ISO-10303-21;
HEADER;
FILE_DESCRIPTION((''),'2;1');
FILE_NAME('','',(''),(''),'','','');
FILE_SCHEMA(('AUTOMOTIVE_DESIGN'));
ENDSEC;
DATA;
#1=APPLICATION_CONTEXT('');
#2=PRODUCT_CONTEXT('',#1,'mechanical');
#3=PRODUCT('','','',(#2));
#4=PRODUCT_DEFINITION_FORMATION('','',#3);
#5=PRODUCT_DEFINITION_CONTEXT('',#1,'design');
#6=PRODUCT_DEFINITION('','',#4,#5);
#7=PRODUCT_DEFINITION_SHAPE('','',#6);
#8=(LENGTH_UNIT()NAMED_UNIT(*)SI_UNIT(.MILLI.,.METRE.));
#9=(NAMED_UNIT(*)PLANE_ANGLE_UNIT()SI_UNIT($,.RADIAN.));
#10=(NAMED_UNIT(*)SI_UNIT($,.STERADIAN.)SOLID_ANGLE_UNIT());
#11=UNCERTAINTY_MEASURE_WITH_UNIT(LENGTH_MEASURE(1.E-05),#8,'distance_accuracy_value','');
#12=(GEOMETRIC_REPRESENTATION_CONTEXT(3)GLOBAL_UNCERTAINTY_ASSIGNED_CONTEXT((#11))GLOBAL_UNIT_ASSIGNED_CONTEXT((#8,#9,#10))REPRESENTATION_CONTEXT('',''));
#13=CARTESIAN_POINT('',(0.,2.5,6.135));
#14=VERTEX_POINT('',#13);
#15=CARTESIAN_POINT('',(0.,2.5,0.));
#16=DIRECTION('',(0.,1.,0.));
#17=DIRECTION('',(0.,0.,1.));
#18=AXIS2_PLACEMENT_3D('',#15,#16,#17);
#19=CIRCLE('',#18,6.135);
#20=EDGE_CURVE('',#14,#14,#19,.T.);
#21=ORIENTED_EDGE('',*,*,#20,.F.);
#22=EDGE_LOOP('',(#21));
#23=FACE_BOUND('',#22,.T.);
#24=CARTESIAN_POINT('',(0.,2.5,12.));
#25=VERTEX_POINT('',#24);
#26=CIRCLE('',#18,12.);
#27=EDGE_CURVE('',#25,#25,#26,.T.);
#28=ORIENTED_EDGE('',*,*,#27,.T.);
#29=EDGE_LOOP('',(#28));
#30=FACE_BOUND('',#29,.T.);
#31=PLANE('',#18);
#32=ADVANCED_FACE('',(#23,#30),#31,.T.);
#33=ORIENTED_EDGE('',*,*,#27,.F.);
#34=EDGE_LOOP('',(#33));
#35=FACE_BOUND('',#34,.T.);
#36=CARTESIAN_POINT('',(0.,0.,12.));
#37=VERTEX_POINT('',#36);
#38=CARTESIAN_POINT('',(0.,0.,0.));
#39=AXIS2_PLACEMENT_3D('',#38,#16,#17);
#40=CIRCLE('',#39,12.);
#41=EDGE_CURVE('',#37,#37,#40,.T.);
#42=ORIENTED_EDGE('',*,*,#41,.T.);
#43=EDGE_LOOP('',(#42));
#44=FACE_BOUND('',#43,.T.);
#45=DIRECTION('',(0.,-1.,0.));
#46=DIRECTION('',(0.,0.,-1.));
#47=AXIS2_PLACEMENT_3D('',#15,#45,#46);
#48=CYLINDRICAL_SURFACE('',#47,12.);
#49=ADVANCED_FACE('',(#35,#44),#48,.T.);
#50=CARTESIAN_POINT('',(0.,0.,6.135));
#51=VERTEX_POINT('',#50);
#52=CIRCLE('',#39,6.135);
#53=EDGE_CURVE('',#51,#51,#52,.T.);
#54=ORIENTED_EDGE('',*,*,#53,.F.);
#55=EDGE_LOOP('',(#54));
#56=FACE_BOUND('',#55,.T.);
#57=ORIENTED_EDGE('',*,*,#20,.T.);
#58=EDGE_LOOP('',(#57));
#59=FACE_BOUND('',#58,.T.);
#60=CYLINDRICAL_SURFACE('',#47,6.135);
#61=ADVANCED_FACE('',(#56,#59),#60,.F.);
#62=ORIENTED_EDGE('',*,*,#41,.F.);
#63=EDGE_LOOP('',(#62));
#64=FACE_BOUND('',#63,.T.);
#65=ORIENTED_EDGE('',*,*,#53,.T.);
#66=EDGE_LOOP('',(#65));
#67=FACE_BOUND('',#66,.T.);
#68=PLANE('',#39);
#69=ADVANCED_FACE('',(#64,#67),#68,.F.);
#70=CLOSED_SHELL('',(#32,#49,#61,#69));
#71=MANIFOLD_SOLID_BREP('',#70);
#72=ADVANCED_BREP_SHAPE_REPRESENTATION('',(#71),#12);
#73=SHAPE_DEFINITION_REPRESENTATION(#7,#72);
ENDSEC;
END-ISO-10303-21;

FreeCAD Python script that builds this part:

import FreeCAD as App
import Part
import Sketcher
from FreeCAD import Vector

doc = App.newDocument("Part")
body = doc.addObject("PartDesign::Body", "Body")

# Sketch on XZ plane
sketch1 = body.newObject("Sketcher::SketchObject", "Sketch")
sketch1.AttachmentSupport = (doc.getObject("XZ_Plane"), [""])
sketch1.MapMode = "FlatFace"
sketch1.addGeometry([
    Part.Circle(Vector(0, 0, 0), Vector(0, 0, 1), 12),
    Part.Circle(Vector(0, 0, 0), Vector(0, 0, 1), 6),
], False)
sketch1.addConstraint([
    Sketcher.Constraint("Coincident", 0, 3, -1, 1),
    Sketcher.Constraint("Coincident", 1, 3, -1, 1),
    Sketcher.Constraint("Diameter", 0, 24.0),
    Sketcher.Constraint("Diameter", 1, 12.27),
])
pad1 = body.newObject("PartDesign::Pad", "Pad")
pad1.Profile = sketch1
pad1.Length = 2.5
pad1.Reversed = True

doc.recompute()
